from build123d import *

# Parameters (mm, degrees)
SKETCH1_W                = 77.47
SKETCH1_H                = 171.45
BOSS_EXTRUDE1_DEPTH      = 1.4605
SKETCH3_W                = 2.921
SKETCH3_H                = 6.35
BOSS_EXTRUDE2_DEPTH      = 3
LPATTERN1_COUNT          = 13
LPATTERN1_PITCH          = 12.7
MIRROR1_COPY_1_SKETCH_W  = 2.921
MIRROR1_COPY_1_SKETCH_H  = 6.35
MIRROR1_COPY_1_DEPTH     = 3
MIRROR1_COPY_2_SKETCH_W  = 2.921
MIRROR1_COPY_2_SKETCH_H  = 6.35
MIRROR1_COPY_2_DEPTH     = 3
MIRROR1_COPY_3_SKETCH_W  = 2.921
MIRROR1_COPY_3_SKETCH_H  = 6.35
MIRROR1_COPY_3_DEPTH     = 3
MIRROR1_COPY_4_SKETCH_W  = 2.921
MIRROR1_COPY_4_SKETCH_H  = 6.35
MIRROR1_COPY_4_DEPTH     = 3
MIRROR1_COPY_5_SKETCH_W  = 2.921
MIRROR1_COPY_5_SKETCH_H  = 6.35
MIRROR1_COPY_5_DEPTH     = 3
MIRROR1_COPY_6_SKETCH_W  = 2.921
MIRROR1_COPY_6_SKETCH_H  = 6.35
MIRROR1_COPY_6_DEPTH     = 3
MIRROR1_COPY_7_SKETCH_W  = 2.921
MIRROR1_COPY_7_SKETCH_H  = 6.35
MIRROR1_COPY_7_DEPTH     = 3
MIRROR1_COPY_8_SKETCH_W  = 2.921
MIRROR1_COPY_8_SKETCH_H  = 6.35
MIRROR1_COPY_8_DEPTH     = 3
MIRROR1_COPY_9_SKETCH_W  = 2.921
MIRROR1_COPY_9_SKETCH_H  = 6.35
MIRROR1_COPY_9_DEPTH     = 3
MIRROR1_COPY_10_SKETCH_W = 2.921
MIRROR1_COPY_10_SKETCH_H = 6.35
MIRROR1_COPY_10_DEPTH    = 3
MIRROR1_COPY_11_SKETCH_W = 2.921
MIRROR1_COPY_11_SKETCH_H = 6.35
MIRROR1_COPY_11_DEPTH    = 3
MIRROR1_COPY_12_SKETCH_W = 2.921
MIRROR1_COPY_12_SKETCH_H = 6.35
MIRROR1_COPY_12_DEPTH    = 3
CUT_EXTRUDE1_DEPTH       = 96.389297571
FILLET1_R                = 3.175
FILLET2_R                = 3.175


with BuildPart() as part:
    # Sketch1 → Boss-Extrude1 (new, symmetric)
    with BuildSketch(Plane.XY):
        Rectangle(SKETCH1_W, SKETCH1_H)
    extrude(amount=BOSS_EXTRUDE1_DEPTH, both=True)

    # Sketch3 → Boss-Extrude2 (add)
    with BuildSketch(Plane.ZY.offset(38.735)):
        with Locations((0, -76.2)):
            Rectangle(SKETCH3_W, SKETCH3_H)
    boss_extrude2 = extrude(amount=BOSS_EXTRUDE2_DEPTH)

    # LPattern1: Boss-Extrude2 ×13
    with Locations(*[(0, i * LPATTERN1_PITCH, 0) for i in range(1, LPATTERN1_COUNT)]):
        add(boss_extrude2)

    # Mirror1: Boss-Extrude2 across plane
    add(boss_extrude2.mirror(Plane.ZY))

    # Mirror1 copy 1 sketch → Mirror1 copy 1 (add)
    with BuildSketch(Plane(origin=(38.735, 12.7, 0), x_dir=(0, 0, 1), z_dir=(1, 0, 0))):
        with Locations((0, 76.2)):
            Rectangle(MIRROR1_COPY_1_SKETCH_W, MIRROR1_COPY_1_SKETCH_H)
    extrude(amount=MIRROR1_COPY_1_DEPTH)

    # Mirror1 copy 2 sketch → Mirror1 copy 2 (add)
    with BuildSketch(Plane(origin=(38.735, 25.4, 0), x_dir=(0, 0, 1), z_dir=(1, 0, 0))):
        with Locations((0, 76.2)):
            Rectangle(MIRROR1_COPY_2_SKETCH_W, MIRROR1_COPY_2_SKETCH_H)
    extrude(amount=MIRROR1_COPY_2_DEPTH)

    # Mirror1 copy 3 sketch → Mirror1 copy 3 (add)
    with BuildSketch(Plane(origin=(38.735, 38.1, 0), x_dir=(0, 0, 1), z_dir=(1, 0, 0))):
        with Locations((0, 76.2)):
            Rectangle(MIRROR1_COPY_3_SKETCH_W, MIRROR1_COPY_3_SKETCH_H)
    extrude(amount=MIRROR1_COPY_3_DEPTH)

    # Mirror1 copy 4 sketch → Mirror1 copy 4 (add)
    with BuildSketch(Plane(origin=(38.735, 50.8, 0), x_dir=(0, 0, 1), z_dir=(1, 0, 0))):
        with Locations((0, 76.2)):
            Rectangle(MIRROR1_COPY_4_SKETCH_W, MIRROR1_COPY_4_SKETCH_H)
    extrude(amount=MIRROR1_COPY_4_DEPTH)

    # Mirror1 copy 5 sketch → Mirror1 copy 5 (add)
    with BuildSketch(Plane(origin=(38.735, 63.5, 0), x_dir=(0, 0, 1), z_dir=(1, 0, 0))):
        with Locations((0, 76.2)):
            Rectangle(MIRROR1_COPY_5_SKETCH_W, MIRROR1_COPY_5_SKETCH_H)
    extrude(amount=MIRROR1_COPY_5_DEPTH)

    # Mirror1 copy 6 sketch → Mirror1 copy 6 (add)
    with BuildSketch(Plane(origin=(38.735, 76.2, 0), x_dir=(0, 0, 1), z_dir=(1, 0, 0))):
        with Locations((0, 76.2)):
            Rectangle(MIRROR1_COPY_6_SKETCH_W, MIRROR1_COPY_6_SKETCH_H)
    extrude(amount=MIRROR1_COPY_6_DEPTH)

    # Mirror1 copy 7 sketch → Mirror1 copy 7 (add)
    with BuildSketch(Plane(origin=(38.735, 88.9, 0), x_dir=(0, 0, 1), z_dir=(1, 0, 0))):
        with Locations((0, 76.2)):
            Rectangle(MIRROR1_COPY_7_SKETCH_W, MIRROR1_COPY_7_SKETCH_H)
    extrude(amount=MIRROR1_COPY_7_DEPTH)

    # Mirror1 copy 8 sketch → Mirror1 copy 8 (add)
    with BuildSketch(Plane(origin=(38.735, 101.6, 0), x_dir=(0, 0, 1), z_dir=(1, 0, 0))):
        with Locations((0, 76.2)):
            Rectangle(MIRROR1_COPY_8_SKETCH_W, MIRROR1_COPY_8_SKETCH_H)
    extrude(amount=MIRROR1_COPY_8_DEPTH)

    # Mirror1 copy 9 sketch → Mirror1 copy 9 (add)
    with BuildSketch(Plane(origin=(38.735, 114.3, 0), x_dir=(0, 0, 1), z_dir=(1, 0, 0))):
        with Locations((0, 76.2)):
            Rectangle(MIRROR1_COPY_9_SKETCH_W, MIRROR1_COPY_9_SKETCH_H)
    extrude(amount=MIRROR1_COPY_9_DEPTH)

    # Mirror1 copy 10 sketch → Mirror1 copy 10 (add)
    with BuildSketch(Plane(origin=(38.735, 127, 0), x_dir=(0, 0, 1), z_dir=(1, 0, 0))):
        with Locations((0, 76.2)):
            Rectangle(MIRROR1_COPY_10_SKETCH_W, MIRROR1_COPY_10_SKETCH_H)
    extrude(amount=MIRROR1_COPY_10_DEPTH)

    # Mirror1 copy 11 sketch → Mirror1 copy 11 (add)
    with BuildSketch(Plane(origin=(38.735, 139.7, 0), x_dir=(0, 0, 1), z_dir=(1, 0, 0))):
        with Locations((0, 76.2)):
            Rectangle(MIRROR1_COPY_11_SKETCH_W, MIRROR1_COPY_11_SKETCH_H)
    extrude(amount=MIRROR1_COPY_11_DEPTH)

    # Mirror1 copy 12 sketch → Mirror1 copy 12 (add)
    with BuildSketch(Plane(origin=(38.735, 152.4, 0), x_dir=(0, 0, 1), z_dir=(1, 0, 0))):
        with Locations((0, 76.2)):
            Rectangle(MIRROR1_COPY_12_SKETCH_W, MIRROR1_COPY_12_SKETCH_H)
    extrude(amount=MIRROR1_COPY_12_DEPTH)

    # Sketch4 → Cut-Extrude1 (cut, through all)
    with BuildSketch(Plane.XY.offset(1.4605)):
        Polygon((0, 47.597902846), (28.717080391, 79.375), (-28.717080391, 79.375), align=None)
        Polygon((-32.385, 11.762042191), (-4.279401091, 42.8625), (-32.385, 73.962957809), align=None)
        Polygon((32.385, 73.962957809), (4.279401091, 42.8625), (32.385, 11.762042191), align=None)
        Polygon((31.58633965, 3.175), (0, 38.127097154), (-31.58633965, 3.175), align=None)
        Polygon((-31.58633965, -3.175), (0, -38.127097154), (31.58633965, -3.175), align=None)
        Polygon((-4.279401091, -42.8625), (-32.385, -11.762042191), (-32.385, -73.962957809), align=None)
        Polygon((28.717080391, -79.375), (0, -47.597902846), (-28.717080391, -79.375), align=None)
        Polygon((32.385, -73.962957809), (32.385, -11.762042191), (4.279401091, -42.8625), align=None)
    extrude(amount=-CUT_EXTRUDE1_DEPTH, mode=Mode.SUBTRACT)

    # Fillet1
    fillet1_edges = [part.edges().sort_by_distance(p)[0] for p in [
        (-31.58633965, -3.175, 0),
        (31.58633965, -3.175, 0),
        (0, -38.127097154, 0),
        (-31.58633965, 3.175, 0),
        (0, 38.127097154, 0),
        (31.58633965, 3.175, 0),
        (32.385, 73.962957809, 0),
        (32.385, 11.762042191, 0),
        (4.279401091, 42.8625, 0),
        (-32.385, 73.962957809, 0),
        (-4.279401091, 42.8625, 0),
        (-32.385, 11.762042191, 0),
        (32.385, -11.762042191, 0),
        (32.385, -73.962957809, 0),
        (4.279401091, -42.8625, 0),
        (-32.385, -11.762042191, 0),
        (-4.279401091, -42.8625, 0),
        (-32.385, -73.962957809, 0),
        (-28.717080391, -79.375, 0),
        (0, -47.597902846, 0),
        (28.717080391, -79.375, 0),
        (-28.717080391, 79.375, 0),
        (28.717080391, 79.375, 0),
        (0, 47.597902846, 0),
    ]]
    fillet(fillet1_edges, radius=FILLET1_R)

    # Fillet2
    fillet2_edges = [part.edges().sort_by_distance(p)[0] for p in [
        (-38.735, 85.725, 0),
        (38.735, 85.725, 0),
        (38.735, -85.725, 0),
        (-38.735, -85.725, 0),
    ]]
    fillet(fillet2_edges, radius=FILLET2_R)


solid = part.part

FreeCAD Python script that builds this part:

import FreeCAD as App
import Part
import Sketcher
from FreeCAD import Vector
Q = App.Units.Quantity


def edges_at(feature, points):
    """Names of the edges that pass closest to the given points."""
    edges = feature.Shape.Edges
    near = lambda p: min(range(len(edges)), key=lambda i: edges[i].distToShape(Part.Vertex(*p))[0])
    return sorted({f"Edge{near(p) + 1}" for p in points})

doc = App.newDocument("Part")
body = doc.addObject("PartDesign::Body", "Body")

# Sketch on XY plane
sketch1 = body.newObject("Sketcher::SketchObject", "Sketch")
sketch1.AttachmentSupport = (doc.getObject("XY_Plane"), [""])
sketch1.MapMode = "FlatFace"
sketch1.addGeometry(Part.LineSegment(Vector(-38.735, 85.725, 0), Vector(-38.735, -85.725, 0)), False)
sketch1.addGeometry(Part.LineSegment(Vector(-38.735, -85.725, 0), Vector(38.735, -85.725, 0)), False)
sketch1.addGeometry(Part.LineSegment(Vector(38.735, -85.725, 0), Vector(38.735, 85.725, 0)), False)
sketch1.addGeometry(Part.LineSegment(Vector(38.735, 85.725, 0), Vector(-38.735, 85.725, 0)), False)
sketch1.addConstraint(Sketcher.Constraint("Coincident", 0, 2, 1, 1))
sketch1.addConstraint(Sketcher.Constraint("Coincident", 1, 2, 2, 1))
sketch1.addConstraint(Sketcher.Constraint("Coincident", 2, 2, 3, 1))
sketch1.addConstraint(Sketcher.Constraint("Coincident", 3, 2, 0, 1))
sketch1.addConstraint(Sketcher.Constraint("Vertical", 0))
sketch1.addConstraint(Sketcher.Constraint("Horizontal", 1))
sketch1.addConstraint(Sketcher.Constraint("Vertical", 2))
sketch1.addConstraint(Sketcher.Constraint("Horizontal", 3))
sketch1.addConstraint(Sketcher.Constraint("Symmetric", 0, 2, 2, 2, -1, 1))
sketch1.addConstraint(Sketcher.Constraint("DistanceX", 1, 1, 1, 2, Q("3.05 in")))
sketch1.addConstraint(Sketcher.Constraint("DistanceY", 0, 2, 0, 1, Q("6.75 in")))
pad1 = body.newObject("PartDesign::Pad", "Pad")
pad1.Profile = sketch1
pad1.Length = Q("0.115 in")
pad1.Midplane = True

# Sketch on YZ plane
sketch2 = body.newObject("Sketcher::SketchObject", "Sketch001")
sketch2.AttachmentSupport = (doc.getObject("YZ_Plane"), [""])
sketch2.MapMode = "FlatFace"
sketch2.AttachmentOffset = App.Placement(Vector(0, 0, -1.525 * 25.4), App.Rotation())
sketch2.addGeometry(Part.LineSegment(Vector(-73.025, -1.4605, 0), Vector(-79.375, -1.4605, 0)), False)
sketch2.addGeometry(Part.LineSegment(Vector(-79.375, -1.4605, 0), Vector(-79.375, 1.4605, 0)), False)
sketch2.addGeometry(Part.LineSegment(Vector(-79.375, 1.4605, 0), Vector(-73.025, 1.4605, 0)), False)
sketch2.addGeometry(Part.LineSegment(Vector(-73.025, 1.4605, 0), Vector(-73.025, -1.4605, 0)), False)
sketch2.addConstraint(Sketcher.Constraint("Coincident", 0, 2, 1, 1))
sketch2.addConstraint(Sketcher.Constraint("Coincident", 1, 2, 2, 1))
sketch2.addConstraint(Sketcher.Constraint("Coincident", 2, 2, 3, 1))
sketch2.addConstraint(Sketcher.Constraint("Coincident", 3, 2, 0, 1))
sketch2.addConstraint(Sketcher.Constraint("Horizontal", 0))
sketch2.addConstraint(Sketcher.Constraint("Vertical", 1))
sketch2.addConstraint(Sketcher.Constraint("Horizontal", 2))
sketch2.addConstraint(Sketcher.Constraint("Vertical", 3))
sketch2.addConstraint(Sketcher.Constraint("DistanceX", 0, 2, 0, 1, Q("0.25 in")))
sketch2.addConstraint(Sketcher.Constraint("DistanceY", 1, 1, 1, 2, Q("0.115 in")))
sketch2.addConstraint(Sketcher.Constraint("DistanceX", 0, 2, -1, 1, Q("3.125 in")))
sketch2.addConstraint(Sketcher.Constraint("DistanceY", 0, 2, -1, 1, Q("0.0575 in")))
pad2 = body.newObject("PartDesign::Pad", "Pad001")
pad2.Profile = sketch2
pad2.Length = 3
pad2.Reversed = True
doc.recompute()

linearpattern = body.newObject("PartDesign::LinearPattern", "LinearPattern")
linearpattern.Originals = [pad2]
linearpattern.Direction = (doc.getObject("Y_Axis"), [""])
linearpattern.Mode = "offset"
linearpattern.Offset = Q("0.5 in")
linearpattern.Occurrences = 13
body.Tip = linearpattern
doc.recompute()

mirrored = body.newObject("PartDesign::Mirrored", "Mirrored")
mirrored.Originals = [pad2]
mirrored.MirrorPlane = (doc.getObject("YZ_Plane"), [""])
body.Tip = mirrored

# Sketch on YZ plane
sketch3 = body.newObject("Sketcher::SketchObject", "Sketch002")
sketch3.AttachmentSupport = (doc.getObject("YZ_Plane"), [""])
sketch3.MapMode = "FlatFace"
sketch3.AttachmentOffset = App.Placement(Vector(0, 0, 1.525 * 25.4), App.Rotation())
sketch3.addGeometry(Part.LineSegment(Vector(-66.675, -1.4605, 0), Vector(-60.325, -1.4605, 0)), False)
sketch3.addGeometry(Part.LineSegment(Vector(-60.325, -1.4605, 0), Vector(-60.325, 1.4605, 0)), False)
sketch3.addGeometry(Part.LineSegment(Vector(-60.325, 1.4605, 0), Vector(-66.675, 1.4605, 0)), False)
sketch3.addGeometry(Part.LineSegment(Vector(-66.675, 1.4605, 0), Vector(-66.675, -1.4605, 0)), False)
sketch3.addConstraint(Sketcher.Constraint("Coincident", 0, 2, 1, 1))
sketch3.addConstraint(Sketcher.Constraint("Coincident", 1, 2, 2, 1))
sketch3.addConstraint(Sketcher.Constraint("Coincident", 2, 2, 3, 1))
sketch3.addConstraint(Sketcher.Constraint("Coincident", 3, 2, 0, 1))
sketch3.addConstraint(Sketcher.Constraint("Horizontal", 0))
sketch3.addConstraint(Sketcher.Constraint("Vertical", 1))
sketch3.addConstraint(Sketcher.Constraint("Horizontal", 2))
sketch3.addConstraint(Sketcher.Constraint("Vertical", 3))
sketch3.addConstraint(Sketcher.Constraint("DistanceX", 0, 1, 0, 2, Q("0.25 in")))
sketch3.addConstraint(Sketcher.Constraint("DistanceY", 1, 1, 1, 2, Q("0.115 in")))
sketch3.addConstraint(Sketcher.Constraint("DistanceX", 0, 2, -1, 1, Q("2.375 in")))
sketch3.addConstraint(Sketcher.Constraint("DistanceY", 0, 2, -1, 1, Q("0.0575 in")))
pad3 = body.newObject("PartDesign::Pad", "Pad002")
pad3.Profile = sketch3
pad3.Length = 3

# Sketch on YZ plane
sketch4 = body.newObject("Sketcher::SketchObject", "Sketch003")
sketch4.AttachmentSupport = (doc.getObject("YZ_Plane"), [""])
sketch4.MapMode = "FlatFace"
sketch4.AttachmentOffset = App.Placement(Vector(0, 0, 1.525 * 25.4), App.Rotation())
sketch4.addGeometry(Part.LineSegment(Vector(-53.975, -1.4605, 0), Vector(-47.625, -1.4605, 0)), False)
sketch4.addGeometry(Part.LineSegment(Vector(-47.625, -1.4605, 0), Vector(-47.625, 1.4605, 0)), False)
sketch4.addGeometry(Part.LineSegment(Vector(-47.625, 1.4605, 0), Vector(-53.975, 1.4605, 0)), False)
sketch4.addGeometry(Part.LineSegment(Vector(-53.975, 1.4605, 0), Vector(-53.975, -1.4605, 0)), False)
sketch4.addConstraint(Sketcher.Constraint("Coincident", 0, 2, 1, 1))
sketch4.addConstraint(Sketcher.Constraint("Coincident", 1, 2, 2, 1))
sketch4.addConstraint(Sketcher.Constraint("Coincident", 2, 2, 3, 1))
sketch4.addConstraint(Sketcher.Constraint("Coincident", 3, 2, 0, 1))
sketch4.addConstraint(Sketcher.Constraint("Horizontal", 0))
sketch4.addConstraint(Sketcher.Constraint("Vertical", 1))
sketch4.addConstraint(Sketcher.Constraint("Horizontal", 2))
sketch4.addConstraint(Sketcher.Constraint("Vertical", 3))
sketch4.addConstraint(Sketcher.Constraint("DistanceX", 0, 1, 0, 2, Q("0.25 in")))
sketch4.addConstraint(Sketcher.Constraint("DistanceY", 1, 1, 1, 2, Q("0.115 in")))
sketch4.addConstraint(Sketcher.Constraint("DistanceX", 0, 2, -1, 1, Q("1.875 in")))
sketch4.addConstraint(Sketcher.Constraint("DistanceY", 0, 2, -1, 1, Q("0.0575 in")))
pad4 = body.newObject("PartDesign::Pad", "Pad003")
pad4.Profile = sketch4
pad4.Length = 3

# Sketch on YZ plane
sketch5 = body.newObject("Sketcher::SketchObject", "Sketch004")
sketch5.AttachmentSupport = (doc.getObject("YZ_Plane"), [""])
sketch5.MapMode = "FlatFace"
sketch5.AttachmentOffset = App.Placement(Vector(0, 0, 1.525 * 25.4), App.Rotation())
sketch5.addGeometry(Part.LineSegment(Vector(-41.275, -1.4605, 0), Vector(-34.925, -1.4605, 0)), False)
sketch5.addGeometry(Part.LineSegment(Vector(-34.925, -1.4605, 0), Vector(-34.925, 1.4605, 0)), False)
sketch5.addGeometry(Part.LineSegment(Vector(-34.925, 1.4605, 0), Vector(-41.275, 1.4605, 0)), False)
sketch5.addGeometry(Part.LineSegment(Vector(-41.275, 1.4605, 0), Vector(-41.275, -1.4605, 0)), False)
sketch5.addConstraint(Sketcher.Constraint("Coincident", 0, 2, 1, 1))
sketch5.addConstraint(Sketcher.Constraint("Coincident", 1, 2, 2, 1))
sketch5.addConstraint(Sketcher.Constraint("Coincident", 2, 2, 3, 1))
sketch5.addConstraint(Sketcher.Constraint("Coincident", 3, 2, 0, 1))
sketch5.addConstraint(Sketcher.Constraint("Horizontal", 0))
sketch5.addConstraint(Sketcher.Constraint("Vertical", 1))
sketch5.addConstraint(Sketcher.Constraint("Horizontal", 2))
sketch5.addConstraint(Sketcher.Constraint("Vertical", 3))
sketch5.addConstraint(Sketcher.Constraint("DistanceX", 0, 1, 0, 2, Q("0.25 in")))
sketch5.addConstraint(Sketcher.Constraint("DistanceY", 1, 1, 1, 2, Q("0.115 in")))
sketch5.addConstraint(Sketcher.Constraint("DistanceX", 0, 2, -1, 1, Q("1.375 in")))
sketch5.addConstraint(Sketcher.Constraint("DistanceY", 0, 2, -1, 1, Q("0.0575 in")))
pad5 = body.newObject("PartDesign::Pad", "Pad004")
pad5.Profile = sketch5
pad5.Length = 3

# Sketch on YZ plane
sketch6 = body.newObject("Sketcher::SketchObject", "Sketch005")
sketch6.AttachmentSupport = (doc.getObject("YZ_Plane"), [""])
sketch6.MapMode = "FlatFace"
sketch6.AttachmentOffset = App.Placement(Vector(0, 0, 1.525 * 25.4), App.Rotation())
sketch6.addGeometry(Part.LineSegment(Vector(-28.575, -1.4605, 0), Vector(-22.225, -1.4605, 0)), False)
sketch6.addGeometry(Part.LineSegment(Vector(-22.225, -1.4605, 0), Vector(-22.225, 1.4605, 0)), False)
sketch6.addGeometry(Part.LineSegment(Vector(-22.225, 1.4605, 0), Vector(-28.575, 1.4605, 0)), False)
sketch6.addGeometry(Part.LineSegment(Vector(-28.575, 1.4605, 0), Vector(-28.575, -1.4605, 0)), False)
sketch6.addConstraint(Sketcher.Constraint("Coincident", 0, 2, 1, 1))
sketch6.addConstraint(Sketcher.Constraint("Coincident", 1, 2, 2, 1))
sketch6.addConstraint(Sketcher.Constraint("Coincident", 2, 2, 3, 1))
sketch6.addConstraint(Sketcher.Constraint("Coincident", 3, 2, 0, 1))
sketch6.addConstraint(Sketcher.Constraint("Horizontal", 0))
sketch6.addConstraint(Sketcher.Constraint("Vertical", 1))
sketch6.addConstraint(Sketcher.Constraint("Horizontal", 2))
sketch6.addConstraint(Sketcher.Constraint("Vertical", 3))
sketch6.addConstraint(Sketcher.Constraint("DistanceX", 0, 1, 0, 2, Q("0.25 in")))
sketch6.addConstraint(Sketcher.Constraint("DistanceY", 1, 1, 1, 2, Q("0.115 in")))
sketch6.addConstraint(Sketcher.Constraint("DistanceX", 0, 2, -1, 1, Q("0.875 in")))
sketch6.addConstraint(Sketcher.Constraint("DistanceY", 0, 2, -1, 1, Q("0.0575 in")))
pad6 = body.newObject("PartDesign::Pad", "Pad005")
pad6.Profile = sketch6
pad6.Length = 3

# Sketch on YZ plane
sketch7 = body.newObject("Sketcher::SketchObject", "Sketch006")
sketch7.AttachmentSupport = (doc.getObject("YZ_Plane"), [""])
sketch7.MapMode = "FlatFace"
sketch7.AttachmentOffset = App.Placement(Vector(0, 0, 1.525 * 25.4), App.Rotation())
sketch7.addGeometry(Part.LineSegment(Vector(-15.875, -1.4605, 0), Vector(-9.525, -1.4605, 0)), False)
sketch7.addGeometry(Part.LineSegment(Vector(-9.525, -1.4605, 0), Vector(-9.525, 1.4605, 0)), False)
sketch7.addGeometry(Part.LineSegment(Vector(-9.525, 1.4605, 0), Vector(-15.875, 1.4605, 0)), False)
sketch7.addGeometry(Part.LineSegment(Vector(-15.875, 1.4605, 0), Vector(-15.875, -1.4605, 0)), False)
sketch7.addConstraint(Sketcher.Constraint("Coincident", 0, 2, 1, 1))
sketch7.addConstraint(Sketcher.Constraint("Coincident", 1, 2, 2, 1))
sketch7.addConstraint(Sketcher.Constraint("Coincident", 2, 2, 3, 1))
sketch7.addConstraint(Sketcher.Constraint("Coincident", 3, 2, 0, 1))
sketch7.addConstraint(Sketcher.Constraint("Horizontal", 0))
sketch7.addConstraint(Sketcher.Constraint("Vertical", 1))
sketch7.addConstraint(Sketcher.Constraint("Horizontal", 2))
sketch7.addConstraint(Sketcher.Constraint("Vertical", 3))
sketch7.addConstraint(Sketcher.Constraint("DistanceX", 0, 1, 0, 2, Q("0.25 in")))
sketch7.addConstraint(Sketcher.Constraint("DistanceY", 1, 1, 1, 2, Q("0.115 in")))
sketch7.addConstraint(Sketcher.Constraint("DistanceX", 0, 2, -1, 1, Q("0.375 in")))
sketch7.addConstraint(Sketcher.Constraint("DistanceY", 0, 2, -1, 1, Q("0.0575 in")))
pad7 = body.newObject("PartDesign::Pad", "Pad006")
pad7.Profile = sketch7
pad7.Length = 3

# Sketch on YZ plane
sketch8 = body.newObject("Sketcher::SketchObject", "Sketch007")
sketch8.AttachmentSupport = (doc.getObject("YZ_Plane"), [""])
sketch8.MapMode = "FlatFace"
sketch8.AttachmentOffset = App.Placement(Vector(0, 0, 1.525 * 25.4), App.Rotation())
sketch8.addGeometry(Part.LineSegment(Vector(-3.175, -1.4605, 0), Vector(3.175, -1.4605, 0)), False)
sketch8.addGeometry(Part.LineSegment(Vector(3.175, -1.4605, 0), Vector(3.175, 1.4605, 0)), False)
sketch8.addGeometry(Part.LineSegment(Vector(3.175, 1.4605, 0), Vector(-3.175, 1.4605, 0)), False)
sketch8.addGeometry(Part.LineSegment(Vector(-3.175, 1.4605, 0), Vector(-3.175, -1.4605, 0)), False)
sketch8.addConstraint(Sketcher.Constraint("Coincident", 0, 2, 1, 1))
sketch8.addConstraint(Sketcher.Constraint("Coincident", 1, 2, 2, 1))
sketch8.addConstraint(Sketcher.Constraint("Coincident", 2, 2, 3, 1))
sketch8.addConstraint(Sketcher.Constraint("Coincident", 3, 2, 0, 1))
sketch8.addConstraint(Sketcher.Constraint("Horizontal", 0))
sketch8.addConstraint(Sketcher.Constraint("Vertical", 1))
sketch8.addConstraint(Sketcher.Constraint("Horizontal", 2))
sketch8.addConstraint(Sketcher.Constraint("Vertical", 3))
sketch8.addConstraint(Sketcher.Constraint("Symmetric", 0, 2, 2, 2, -1, 1))
sketch8.addConstraint(Sketcher.Constraint("DistanceX", 0, 1, 0, 2, Q("0.25 in")))
sketch8.addConstraint(Sketcher.Constraint("DistanceY", 1, 1, 1, 2, Q("0.115 in")))
pad8 = body.newObject("PartDesign::Pad", "Pad007")
pad8.Profile = sketch8
pad8.Length = 3

# Sketch on YZ plane
sketch9 = body.newObject("Sketcher::SketchObject", "Sketch008")
sketch9.AttachmentSupport = (doc.getObject("YZ_Plane"), [""])
sketch9.MapMode = "FlatFace"
sketch9.AttachmentOffset = App.Placement(Vector(0, 0, 1.525 * 25.4), App.Rotation())
sketch9.addGeometry(Part.LineSegment(Vector(9.525, -1.4605, 0), Vector(15.875, -1.4605, 0)), False)
sketch9.addGeometry(Part.LineSegment(Vector(15.875, -1.4605, 0), Vector(15.875, 1.4605, 0)), False)
sketch9.addGeometry(Part.LineSegment(Vector(15.875, 1.4605, 0), Vector(9.525, 1.4605, 0)), False)
sketch9.addGeometry(Part.LineSegment(Vector(9.525, 1.4605, 0), Vector(9.525, -1.4605, 0)), False)
sketch9.addConstraint(Sketcher.Constraint("Coincident", 0, 2, 1, 1))
sketch9.addConstraint(Sketcher.Constraint("Coincident", 1, 2, 2, 1))
sketch9.addConstraint(Sketcher.Constraint("Coincident", 2, 2, 3, 1))
sketch9.addConstraint(Sketcher.Constraint("Coincident", 3, 2, 0, 1))
sketch9.addConstraint(Sketcher.Constraint("Horizontal", 0))
sketch9.addConstraint(Sketcher.Constraint("Vertical", 1))
sketch9.addConstraint(Sketcher.Constraint("Horizontal", 2))
sketch9.addConstraint(Sketcher.Constraint("Vertical", 3))
sketch9.addConstraint(Sketcher.Constraint("DistanceX", 0, 1, 0, 2, Q("0.25 in")))
sketch9.addConstraint(Sketcher.Constraint("DistanceY", 1, 1, 1, 2, Q("0.115 in")))
sketch9.addConstraint(Sketcher.Constraint("DistanceX", -1, 1, 0, 2, Q("0.625 in")))
sketch9.addConstraint(Sketcher.Constraint("DistanceY", 0, 2, -1, 1, Q("0.0575 in")))
pad9 = body.newObject("PartDesign::Pad", "Pad008")
pad9.Profile = sketch9
pad9.Length = 3

# Sketch on YZ plane
sketch10 = body.newObject("Sketcher::SketchObject", "Sketch009")
sketch10.AttachmentSupport = (doc.getObject("YZ_Plane"), [""])
sketch10.MapMode = "FlatFace"
sketch10.AttachmentOffset = App.Placement(Vector(0, 0, 1.525 * 25.4), App.Rotation())
sketch10.addGeometry(Part.LineSegment(Vector(22.225, -1.4605, 0), Vector(28.575, -1.4605, 0)), False)
sketch10.addGeometry(Part.LineSegment(Vector(28.575, -1.4605, 0), Vector(28.575, 1.4605, 0)), False)
sketch10.addGeometry(Part.LineSegment(Vector(28.575, 1.4605, 0), Vector(22.225, 1.4605, 0)), False)
sketch10.addGeometry(Part.LineSegment(Vector(22.225, 1.4605, 0), Vector(22.225, -1.4605, 0)), False)
sketch10.addConstraint(Sketcher.Constraint("Coincident", 0, 2, 1, 1))
sketch10.addConstraint(Sketcher.Constraint("Coincident", 1, 2, 2, 1))
sketch10.addConstraint(Sketcher.Constraint("Coincident", 2, 2, 3, 1))
sketch10.addConstraint(Sketcher.Constraint("Coincident", 3, 2, 0, 1))
sketch10.addConstraint(Sketcher.Constraint("Horizontal", 0))
sketch10.addConstraint(Sketcher.Constraint("Vertical", 1))
sketch10.addConstraint(Sketcher.Constraint("Horizontal", 2))
sketch10.addConstraint(Sketcher.Constraint("Vertical", 3))
sketch10.addConstraint(Sketcher.Constraint("DistanceX", 0, 1, 0, 2, Q("0.25 in")))
sketch10.addConstraint(Sketcher.Constraint("DistanceY", 1, 1, 1, 2, Q("0.115 in")))
sketch10.addConstraint(Sketcher.Constraint("DistanceX", -1, 1, 0, 2, Q("1.125 in")))
sketch10.addConstraint(Sketcher.Constraint("DistanceY", 0, 2, -1, 1, Q("0.0575 in")))
pad10 = body.newObject("PartDesign::Pad", "Pad009")
pad10.Profile = sketch10
pad10.Length = 3

# Sketch on YZ plane
sketch11 = body.newObject("Sketcher::SketchObject", "Sketch010")
sketch11.AttachmentSupport = (doc.getObject("YZ_Plane"), [""])
sketch11.MapMode = "FlatFace"
sketch11.AttachmentOffset = App.Placement(Vector(0, 0, 1.525 * 25.4), App.Rotation())
sketch11.addGeometry(Part.LineSegment(Vector(34.925, -1.4605, 0), Vector(41.275, -1.4605, 0)), False)
sketch11.addGeometry(Part.LineSegment(Vector(41.275, -1.4605, 0), Vector(41.275, 1.4605, 0)), False)
sketch11.addGeometry(Part.LineSegment(Vector(41.275, 1.4605, 0), Vector(34.925, 1.4605, 0)), False)
sketch11.addGeometry(Part.LineSegment(Vector(34.925, 1.4605, 0), Vector(34.925, -1.4605, 0)), False)
sketch11.addConstraint(Sketcher.Constraint("Coincident", 0, 2, 1, 1))
sketch11.addConstraint(Sketcher.Constraint("Coincident", 1, 2, 2, 1))
sketch11.addConstraint(Sketcher.Constraint("Coincident", 2, 2, 3, 1))
sketch11.addConstraint(Sketcher.Constraint("Coincident", 3, 2, 0, 1))
sketch11.addConstraint(Sketcher.Constraint("Horizontal", 0))
sketch11.addConstraint(Sketcher.Constraint("Vertical", 1))
sketch11.addConstraint(Sketcher.Constraint("Horizontal", 2))
sketch11.addConstraint(Sketcher.Constraint("Vertical", 3))
sketch11.addConstraint(Sketcher.Constraint("DistanceX", 0, 1, 0, 2, Q("0.25 in")))
sketch11.addConstraint(Sketcher.Constraint("DistanceY", 1, 1, 1, 2, Q("0.115 in")))
sketch11.addConstraint(Sketcher.Constraint("DistanceX", -1, 1, 0, 2, Q("1.625 in")))
sketch11.addConstraint(Sketcher.Constraint("DistanceY", 0, 2, -1, 1, Q("0.0575 in")))
pad11 = body.newObject("PartDesign::Pad", "Pad010")
pad11.Profile = sketch11
pad11.Length = 3

# Sketch on YZ plane
sketch12 = body.newObject("Sketcher::SketchObject", "Sketch011")
sketch12.AttachmentSupport = (doc.getObject("YZ_Plane"), [""])
sketch12.MapMode = "FlatFace"
sketch12.AttachmentOffset = App.Placement(Vector(0, 0, 1.525 * 25.4), App.Rotation())
sketch12.addGeometry(Part.LineSegment(Vector(47.625, -1.4605, 0), Vector(53.975, -1.4605, 0)), False)
sketch12.addGeometry(Part.LineSegment(Vector(53.975, -1.4605, 0), Vector(53.975, 1.4605, 0)), False)
sketch12.addGeometry(Part.LineSegment(Vector(53.975, 1.4605, 0), Vector(47.625, 1.4605, 0)), False)
sketch12.addGeometry(Part.LineSegment(Vector(47.625, 1.4605, 0), Vector(47.625, -1.4605, 0)), False)
sketch12.addConstraint(Sketcher.Constraint("Coincident", 0, 2, 1, 1))
sketch12.addConstraint(Sketcher.Constraint("Coincident", 1, 2, 2, 1))
sketch12.addConstraint(Sketcher.Constraint("Coincident", 2, 2, 3, 1))
sketch12.addConstraint(Sketcher.Constraint("Coincident", 3, 2, 0, 1))
sketch12.addConstraint(Sketcher.Constraint("Horizontal", 0))
sketch12.addConstraint(Sketcher.Constraint("Vertical", 1))
sketch12.addConstraint(Sketcher.Constraint("Horizontal", 2))
sketch12.addConstraint(Sketcher.Constraint("Vertical", 3))
sketch12.addConstraint(Sketcher.Constraint("DistanceX", 0, 1, 0, 2, Q("0.25 in")))
sketch12.addConstraint(Sketcher.Constraint("DistanceY", 1, 1, 1, 2, Q("0.115 in")))
sketch12.addConstraint(Sketcher.Constraint("DistanceX", -1, 1, 0, 2, Q("2.125 in")))
sketch12.addConstraint(Sketcher.Constraint("DistanceY", 0, 2, -1, 1, Q("0.0575 in")))
pad12 = body.newObject("PartDesign::Pad", "Pad011")
pad12.Profile = sketch12
pad12.Length = 3

# Sketch on YZ plane
sketch13 = body.newObject("Sketcher::SketchObject", "Sketch012")
sketch13.AttachmentSupport = (doc.getObject("YZ_Plane"), [""])
sketch13.MapMode = "FlatFace"
sketch13.AttachmentOffset = App.Placement(Vector(0, 0, 1.525 * 25.4), App.Rotation())
sketch13.addGeometry(Part.LineSegment(Vector(60.325, -1.4605, 0), Vector(66.675, -1.4605, 0)), False)
sketch13.addGeometry(Part.LineSegment(Vector(66.675, -1.4605, 0), Vector(66.675, 1.4605, 0)), False)
sketch13.addGeometry(Part.LineSegment(Vector(66.675, 1.4605, 0), Vector(60.325, 1.4605, 0)), False)
sketch13.addGeometry(Part.LineSegment(Vector(60.325, 1.4605, 0), Vector(60.325, -1.4605, 0)), False)
sketch13.addConstraint(Sketcher.Constraint("Coincident", 0, 2, 1, 1))
sketch13.addConstraint(Sketcher.Constraint("Coincident", 1, 2, 2, 1))
sketch13.addConstraint(Sketcher.Constraint("Coincident", 2, 2, 3, 1))
sketch13.addConstraint(Sketcher.Constraint("Coincident", 3, 2, 0, 1))
sketch13.addConstraint(Sketcher.Constraint("Horizontal", 0))
sketch13.addConstraint(Sketcher.Constraint("Vertical", 1))
sketch13.addConstraint(Sketcher.Constraint("Horizontal", 2))
sketch13.addConstraint(Sketcher.Constraint("Vertical", 3))
sketch13.addConstraint(Sketcher.Constraint("DistanceX", 0, 1, 0, 2, Q("0.25 in")))
sketch13.addConstraint(Sketcher.Constraint("DistanceY", 1, 1, 1, 2, Q("0.115 in")))
sketch13.addConstraint(Sketcher.Constraint("DistanceX", -1, 1, 0, 2, Q("2.625 in")))
sketch13.addConstraint(Sketcher.Constraint("DistanceY", 0, 2, -1, 1, Q("0.0575 in")))
pad13 = body.newObject("PartDesign::Pad", "Pad012")
pad13.Profile = sketch13
pad13.Length = 3

# Sketch on YZ plane
sketch14 = body.newObject("Sketcher::SketchObject", "Sketch013")
sketch14.AttachmentSupport = (doc.getObject("YZ_Plane"), [""])
sketch14.MapMode = "FlatFace"
sketch14.AttachmentOffset = App.Placement(Vector(0, 0, 1.525 * 25.4), App.Rotation())
sketch14.addGeometry(Part.LineSegment(Vector(73.025, -1.4605, 0), Vector(79.375, -1.4605, 0)), False)
sketch14.addGeometry(Part.LineSegment(Vector(79.375, -1.4605, 0), Vector(79.375, 1.4605, 0)), False)
sketch14.addGeometry(Part.LineSegment(Vector(79.375, 1.4605, 0), Vector(73.025, 1.4605, 0)), False)
sketch14.addGeometry(Part.LineSegment(Vector(73.025, 1.4605, 0), Vector(73.025, -1.4605, 0)), False)
sketch14.addConstraint(Sketcher.Constraint("Coincident", 0, 2, 1, 1))
sketch14.addConstraint(Sketcher.Constraint("Coincident", 1, 2, 2, 1))
sketch14.addConstraint(Sketcher.Constraint("Coincident", 2, 2, 3, 1))
sketch14.addConstraint(Sketcher.Constraint("Coincident", 3, 2, 0, 1))
sketch14.addConstraint(Sketcher.Constraint("Horizontal", 0))
sketch14.addConstraint(Sketcher.Constraint("Vertical", 1))
sketch14.addConstraint(Sketcher.Constraint("Horizontal", 2))
sketch14.addConstraint(Sketcher.Constraint("Vertical", 3))
sketch14.addConstraint(Sketcher.Constraint("DistanceX", 0, 1, 0, 2, Q("0.25 in")))
sketch14.addConstraint(Sketcher.Constraint("DistanceY", 1, 1, 1, 2, Q("0.115 in")))
sketch14.addConstraint(Sketcher.Constraint("DistanceX", -1, 1, 0, 2, Q("3.125 in")))
sketch14.addConstraint(Sketcher.Constraint("DistanceY", 0, 2, -1, 1, Q("0.0575 in")))
pad14 = body.newObject("PartDesign::Pad", "Pad013")
pad14.Profile = sketch14
pad14.Length = 3

# Sketch on XY plane
sketch15 = body.newObject("Sketcher::SketchObject", "Sketch014")
sketch15.AttachmentSupport = (doc.getObject("XY_Plane"), [""])
sketch15.MapMode = "FlatFace"
sketch15.AttachmentOffset = App.Placement(Vector(0, 0, 0.0575 * 25.4), App.Rotation())
sketch15.addGeometry(Part.LineSegment(Vector(0, 47.597903, 0), Vector(28.71708, 79.375, 0)), False)
sketch15.addGeometry(Part.LineSegment(Vector(28.71708, 79.375, 0), Vector(-28.71708, 79.375, 0)), False)
sketch15.addGeometry(Part.LineSegment(Vector(-28.71708, 79.375, 0), Vector(0, 47.597903, 0)), False)
sketch15.addGeometry(Part.LineSegment(Vector(-32.385, 11.762042, 0), Vector(-4.279401, 42.8625, 0)), False)
sketch15.addGeometry(Part.LineSegment(Vector(-4.279401, 42.8625, 0), Vector(-32.385, 73.962958, 0)), False)
sketch15.addGeometry(Part.LineSegment(Vector(-32.385, 73.962958, 0), Vector(-32.385, 11.762042, 0)), False)
sketch15.addGeometry(Part.LineSegment(Vector(32.385, 73.962958, 0), Vector(4.279401, 42.8625, 0)), False)
sketch15.addGeometry(Part.LineSegment(Vector(4.279401, 42.8625, 0), Vector(32.385, 11.762042, 0)), False)
sketch15.addGeometry(Part.LineSegment(Vector(32.385, 11.762042, 0), Vector(32.385, 73.962958, 0)), False)
sketch15.addGeometry(Part.LineSegment(Vector(31.58634, 3.175, 0), Vector(0, 38.127097, 0)), False)
sketch15.addGeometry(Part.LineSegment(Vector(0, 38.127097, 0), Vector(-31.58634, 3.175, 0)), False)
sketch15.addGeometry(Part.LineSegment(Vector(-31.58634, 3.175, 0), Vector(31.58634, 3.175, 0)), False)
sketch15.addGeometry(Part.LineSegment(Vector(-31.58634, -3.175, 0), Vector(0, -38.127097, 0)), False)
sketch15.addGeometry(Part.LineSegment(Vector(0, -38.127097, 0), Vector(31.58634, -3.175, 0)), False)
sketch15.addGeometry(Part.LineSegment(Vector(31.58634, -3.175, 0), Vector(-31.58634, -3.175, 0)), False)
sketch15.addGeometry(Part.LineSegment(Vector(-4.279401, -42.8625, 0), Vector(-32.385, -11.762042, 0)), False)
sketch15.addGeometry(Part.LineSegment(Vector(-32.385, -11.762042, 0), Vector(-32.385, -73.962958, 0)), False)
sketch15.addGeometry(Part.LineSegment(Vector(-32.385, -73.962958, 0), Vector(-4.279401, -42.8625, 0)), False)
sketch15.addGeometry(Part.LineSegment(Vector(28.71708, -79.375, 0), Vector(0, -47.597903, 0)), False)
sketch15.addGeometry(Part.LineSegment(Vector(0, -47.597903, 0), Vector(-28.71708, -79.375, 0)), False)
sketch15.addGeometry(Part.LineSegment(Vector(-28.71708, -79.375, 0), Vector(28.71708, -79.375, 0)), False)
sketch15.addGeometry(Part.LineSegment(Vector(32.385, -73.962958, 0), Vector(32.385, -11.762042, 0)), False)
sketch15.addGeometry(Part.LineSegment(Vector(32.385, -11.762042, 0), Vector(4.279401, -42.8625, 0)), False)
sketch15.addGeometry(Part.LineSegment(Vector(4.279401, -42.8625, 0), Vector(32.385, -73.962958, 0)), False)
sketch15.addConstraint(Sketcher.Constraint("Coincident", 0, 2, 1, 1))
sketch15.addConstraint(Sketcher.Constraint("Coincident", 1, 2, 2, 1))
sketch15.addConstraint(Sketcher.Constraint("Coincident", 2, 2, 0, 1))
sketch15.addConstraint(Sketcher.Constraint("Coincident", 3, 2, 4, 1))
sketch15.addConstraint(Sketcher.Constraint("Coincident", 4, 2, 5, 1))
sketch15.addConstraint(Sketcher.Constraint("Coincident", 5, 2, 3, 1))
sketch15.addConstraint(Sketcher.Constraint("Coincident", 6, 2, 7, 1))
sketch15.addConstraint(Sketcher.Constraint("Coincident", 7, 2, 8, 1))
sketch15.addConstraint(Sketcher.Constraint("Coincident", 8, 2, 6, 1))
sketch15.addConstraint(Sketcher.Constraint("Coincident", 9, 2, 10, 1))
sketch15.addConstraint(Sketcher.Constraint("Coincident", 10, 2, 11, 1))
sketch15.addConstraint(Sketcher.Constraint("Coincident", 11, 2, 9, 1))
sketch15.addConstraint(Sketcher.Constraint("Coincident", 12, 2, 13, 1))
sketch15.addConstraint(Sketcher.Constraint("Coincident", 13, 2, 14, 1))
sketch15.addConstraint(Sketcher.Constraint("Coincident", 14, 2, 12, 1))
sketch15.addConstraint(Sketcher.Constraint("Coincident", 15, 2, 16, 1))
sketch15.addConstraint(Sketcher.Constraint("Coincident", 16, 2, 17, 1))
sketch15.addConstraint(Sketcher.Constraint("Coincident", 17, 2, 15, 1))
sketch15.addConstraint(Sketcher.Constraint("Coincident", 18, 2, 19, 1))
sketch15.addConstraint(Sketcher.Constraint("Coincident", 19, 2, 20, 1))
sketch15.addConstraint(Sketcher.Constraint("Coincident", 20, 2, 18, 1))
sketch15.addConstraint(Sketcher.Constraint("Coincident", 21, 2, 22, 1))
sketch15.addConstraint(Sketcher.Constraint("Coincident", 22, 2, 23, 1))
sketch15.addConstraint(Sketcher.Constraint("Coincident", 23, 2, 21, 1))
sketch15.addConstraint(Sketcher.Constraint("Horizontal", 1))
sketch15.addConstraint(Sketcher.Constraint("Vertical", 5))
sketch15.addConstraint(Sketcher.Constraint("Vertical", 8))
sketch15.addConstraint(Sketcher.Constraint("Horizontal", 11))
sketch15.addConstraint(Sketcher.Constraint("Horizontal", 14))
sketch15.addConstraint(Sketcher.Constraint("Vertical", 16))
sketch15.addConstraint(Sketcher.Constraint("Horizontal", 20))
sketch15.addConstraint(Sketcher.Constraint("Vertical", 21))
sketch15.addConstraint(Sketcher.Constraint("Symmetric", 9, 2, 12, 2, -1, 1))
sketch15.addConstraint(Sketcher.Constraint("Symmetric", 10, 2, 13, 2, -1, 1))
sketch15.addConstraint(Sketcher.Constraint("Symmetric", 7, 2, 15, 2, -1, 1))
sketch15.addConstraint(Sketcher.Constraint("Symmetric", 6, 2, 17, 2, -1, 1))
sketch15.addConstraint(Sketcher.Constraint("Symmetric", 2, 2, 18, 2, -1, 1))
sketch15.addConstraint(Sketcher.Constraint("Symmetric", 0, 2, 19, 2, -1, 1))
sketch15.addConstraint(Sketcher.Constraint("Symmetric", 5, 2, 21, 2, -1, 1))
sketch15.addConstraint(Sketcher.Constraint("Symmetric", 3, 2, 22, 2, -1, 1))
sketch15.addConstraint(Sketcher.Constraint("Symmetric", 3, 2, 6, 2, -2))
sketch15.addConstraint(Sketcher.Constraint("Symmetric", 5, 2, 7, 2, -2))
sketch15.addConstraint(Sketcher.Constraint("PointOnObject", 2, 2, -2))
sketch15.addConstraint(Sketcher.Constraint("PointOnObject", 9, 2, -2))
sketch15.addConstraint(Sketcher.Constraint("Parallel", 0, 3))
sketch15.addConstraint(Sketcher.Constraint("Parallel", 2, 4))
sketch15.addConstraint(Sketcher.Constraint("Parallel", 3, 6))
sketch15.addConstraint(Sketcher.Constraint("Parallel", 4, 7))
sketch15.addConstraint(Sketcher.Constraint("Parallel", 7, 9))
sketch15.addConstraint(Sketcher.Constraint("Parallel", 6, 10))
sketch15.addConstraint(Sketcher.Constraint("Parallel", 9, 12))
sketch15.addConstraint(Sketcher.Constraint("Parallel", 13, 17))
sketch15.addConstraint(Sketcher.Constraint("Parallel", 15, 18))
sketch15.addConstraint(Sketcher.Constraint("Parallel", 18, 23))
sketch15.addConstraint(Sketcher.Constraint("DistanceX", 5, 2, 7, 2, Q("2.55 in")))
sketch15.addConstraint(Sketcher.Constraint("DistanceY", 13, 2, 11, 2, Q("0.25 in")))
sketch15.addConstraint(Sketcher.Constraint("DistanceY", -1, 1, 0, 2, Q("3.125 in")))
sketch15.addConstraint(Sketcher.Constraint("DistanceY", -1, 1, 3, 2, Q("1.6875 in")))
sketch15.addConstraint(Sketcher.Constraint("DistanceX", 1, 2, 1, 1, Q("57.434161 mm")))
sketch15.addConstraint(Sketcher.Constraint("DistanceX", 11, 1, 11, 2, Q("63.172679 mm")))
sketch15.addConstraint(Sketcher.Constraint("DistanceX", 3, 2, -1, 1, Q("4.279401 mm")))
sketch15.addConstraint(Sketcher.Constraint("Distance", 3, Q("41.91853 mm")))
pocket1 = body.newObject("PartDesign::Pocket", "Pocket")
pocket1.Profile = sketch15
pocket1.Type = "ThroughAll"
doc.recompute()

fillet = body.newObject("PartDesign::Fillet", "Fillet")
fillet.Base = (pocket1, edges_at(pocket1, [
    (-31.586, -3.175, 0),
    (31.586, -3.175, 0),
    (0, -38.127, 0),
    (-31.586, 3.175, 0),
    (0, 38.127, 0),
    (31.586, 3.175, 0),
    (32.385, 73.963, 0),
    (32.385, 11.762, 0),
    (4.279, 42.862, 0),
    (-32.385, 73.963, 0),
    (-4.279, 42.862, 0),
    (-32.385, 11.762, 0),
    (32.385, -11.762, 0),
    (32.385, -73.963, 0),
    (4.279, -42.862, 0),
    (-32.385, -11.762, 0),
    (-4.279, -42.862, 0),
    (-32.385, -73.963, 0),
    (-28.717, -79.375, 0),
    (0, -47.598, 0),
    (28.717, -79.375, 0),
    (-28.717, 79.375, 0),
    (28.717, 79.375, 0),
    (0, 47.598, 0),
]))
fillet.Radius = Q("0.125 in")
doc.recompute()

fillet2 = body.newObject("PartDesign::Fillet", "Fillet001")
fillet2.Base = (fillet, edges_at(fillet, [
    (-38.735, 85.725, 0),
    (38.735, 85.725, 0),
    (38.735, -85.725, 0),
    (-38.735, -85.725, 0),
]))
fillet2.Radius = Q("0.125 in")

doc.recompute()
